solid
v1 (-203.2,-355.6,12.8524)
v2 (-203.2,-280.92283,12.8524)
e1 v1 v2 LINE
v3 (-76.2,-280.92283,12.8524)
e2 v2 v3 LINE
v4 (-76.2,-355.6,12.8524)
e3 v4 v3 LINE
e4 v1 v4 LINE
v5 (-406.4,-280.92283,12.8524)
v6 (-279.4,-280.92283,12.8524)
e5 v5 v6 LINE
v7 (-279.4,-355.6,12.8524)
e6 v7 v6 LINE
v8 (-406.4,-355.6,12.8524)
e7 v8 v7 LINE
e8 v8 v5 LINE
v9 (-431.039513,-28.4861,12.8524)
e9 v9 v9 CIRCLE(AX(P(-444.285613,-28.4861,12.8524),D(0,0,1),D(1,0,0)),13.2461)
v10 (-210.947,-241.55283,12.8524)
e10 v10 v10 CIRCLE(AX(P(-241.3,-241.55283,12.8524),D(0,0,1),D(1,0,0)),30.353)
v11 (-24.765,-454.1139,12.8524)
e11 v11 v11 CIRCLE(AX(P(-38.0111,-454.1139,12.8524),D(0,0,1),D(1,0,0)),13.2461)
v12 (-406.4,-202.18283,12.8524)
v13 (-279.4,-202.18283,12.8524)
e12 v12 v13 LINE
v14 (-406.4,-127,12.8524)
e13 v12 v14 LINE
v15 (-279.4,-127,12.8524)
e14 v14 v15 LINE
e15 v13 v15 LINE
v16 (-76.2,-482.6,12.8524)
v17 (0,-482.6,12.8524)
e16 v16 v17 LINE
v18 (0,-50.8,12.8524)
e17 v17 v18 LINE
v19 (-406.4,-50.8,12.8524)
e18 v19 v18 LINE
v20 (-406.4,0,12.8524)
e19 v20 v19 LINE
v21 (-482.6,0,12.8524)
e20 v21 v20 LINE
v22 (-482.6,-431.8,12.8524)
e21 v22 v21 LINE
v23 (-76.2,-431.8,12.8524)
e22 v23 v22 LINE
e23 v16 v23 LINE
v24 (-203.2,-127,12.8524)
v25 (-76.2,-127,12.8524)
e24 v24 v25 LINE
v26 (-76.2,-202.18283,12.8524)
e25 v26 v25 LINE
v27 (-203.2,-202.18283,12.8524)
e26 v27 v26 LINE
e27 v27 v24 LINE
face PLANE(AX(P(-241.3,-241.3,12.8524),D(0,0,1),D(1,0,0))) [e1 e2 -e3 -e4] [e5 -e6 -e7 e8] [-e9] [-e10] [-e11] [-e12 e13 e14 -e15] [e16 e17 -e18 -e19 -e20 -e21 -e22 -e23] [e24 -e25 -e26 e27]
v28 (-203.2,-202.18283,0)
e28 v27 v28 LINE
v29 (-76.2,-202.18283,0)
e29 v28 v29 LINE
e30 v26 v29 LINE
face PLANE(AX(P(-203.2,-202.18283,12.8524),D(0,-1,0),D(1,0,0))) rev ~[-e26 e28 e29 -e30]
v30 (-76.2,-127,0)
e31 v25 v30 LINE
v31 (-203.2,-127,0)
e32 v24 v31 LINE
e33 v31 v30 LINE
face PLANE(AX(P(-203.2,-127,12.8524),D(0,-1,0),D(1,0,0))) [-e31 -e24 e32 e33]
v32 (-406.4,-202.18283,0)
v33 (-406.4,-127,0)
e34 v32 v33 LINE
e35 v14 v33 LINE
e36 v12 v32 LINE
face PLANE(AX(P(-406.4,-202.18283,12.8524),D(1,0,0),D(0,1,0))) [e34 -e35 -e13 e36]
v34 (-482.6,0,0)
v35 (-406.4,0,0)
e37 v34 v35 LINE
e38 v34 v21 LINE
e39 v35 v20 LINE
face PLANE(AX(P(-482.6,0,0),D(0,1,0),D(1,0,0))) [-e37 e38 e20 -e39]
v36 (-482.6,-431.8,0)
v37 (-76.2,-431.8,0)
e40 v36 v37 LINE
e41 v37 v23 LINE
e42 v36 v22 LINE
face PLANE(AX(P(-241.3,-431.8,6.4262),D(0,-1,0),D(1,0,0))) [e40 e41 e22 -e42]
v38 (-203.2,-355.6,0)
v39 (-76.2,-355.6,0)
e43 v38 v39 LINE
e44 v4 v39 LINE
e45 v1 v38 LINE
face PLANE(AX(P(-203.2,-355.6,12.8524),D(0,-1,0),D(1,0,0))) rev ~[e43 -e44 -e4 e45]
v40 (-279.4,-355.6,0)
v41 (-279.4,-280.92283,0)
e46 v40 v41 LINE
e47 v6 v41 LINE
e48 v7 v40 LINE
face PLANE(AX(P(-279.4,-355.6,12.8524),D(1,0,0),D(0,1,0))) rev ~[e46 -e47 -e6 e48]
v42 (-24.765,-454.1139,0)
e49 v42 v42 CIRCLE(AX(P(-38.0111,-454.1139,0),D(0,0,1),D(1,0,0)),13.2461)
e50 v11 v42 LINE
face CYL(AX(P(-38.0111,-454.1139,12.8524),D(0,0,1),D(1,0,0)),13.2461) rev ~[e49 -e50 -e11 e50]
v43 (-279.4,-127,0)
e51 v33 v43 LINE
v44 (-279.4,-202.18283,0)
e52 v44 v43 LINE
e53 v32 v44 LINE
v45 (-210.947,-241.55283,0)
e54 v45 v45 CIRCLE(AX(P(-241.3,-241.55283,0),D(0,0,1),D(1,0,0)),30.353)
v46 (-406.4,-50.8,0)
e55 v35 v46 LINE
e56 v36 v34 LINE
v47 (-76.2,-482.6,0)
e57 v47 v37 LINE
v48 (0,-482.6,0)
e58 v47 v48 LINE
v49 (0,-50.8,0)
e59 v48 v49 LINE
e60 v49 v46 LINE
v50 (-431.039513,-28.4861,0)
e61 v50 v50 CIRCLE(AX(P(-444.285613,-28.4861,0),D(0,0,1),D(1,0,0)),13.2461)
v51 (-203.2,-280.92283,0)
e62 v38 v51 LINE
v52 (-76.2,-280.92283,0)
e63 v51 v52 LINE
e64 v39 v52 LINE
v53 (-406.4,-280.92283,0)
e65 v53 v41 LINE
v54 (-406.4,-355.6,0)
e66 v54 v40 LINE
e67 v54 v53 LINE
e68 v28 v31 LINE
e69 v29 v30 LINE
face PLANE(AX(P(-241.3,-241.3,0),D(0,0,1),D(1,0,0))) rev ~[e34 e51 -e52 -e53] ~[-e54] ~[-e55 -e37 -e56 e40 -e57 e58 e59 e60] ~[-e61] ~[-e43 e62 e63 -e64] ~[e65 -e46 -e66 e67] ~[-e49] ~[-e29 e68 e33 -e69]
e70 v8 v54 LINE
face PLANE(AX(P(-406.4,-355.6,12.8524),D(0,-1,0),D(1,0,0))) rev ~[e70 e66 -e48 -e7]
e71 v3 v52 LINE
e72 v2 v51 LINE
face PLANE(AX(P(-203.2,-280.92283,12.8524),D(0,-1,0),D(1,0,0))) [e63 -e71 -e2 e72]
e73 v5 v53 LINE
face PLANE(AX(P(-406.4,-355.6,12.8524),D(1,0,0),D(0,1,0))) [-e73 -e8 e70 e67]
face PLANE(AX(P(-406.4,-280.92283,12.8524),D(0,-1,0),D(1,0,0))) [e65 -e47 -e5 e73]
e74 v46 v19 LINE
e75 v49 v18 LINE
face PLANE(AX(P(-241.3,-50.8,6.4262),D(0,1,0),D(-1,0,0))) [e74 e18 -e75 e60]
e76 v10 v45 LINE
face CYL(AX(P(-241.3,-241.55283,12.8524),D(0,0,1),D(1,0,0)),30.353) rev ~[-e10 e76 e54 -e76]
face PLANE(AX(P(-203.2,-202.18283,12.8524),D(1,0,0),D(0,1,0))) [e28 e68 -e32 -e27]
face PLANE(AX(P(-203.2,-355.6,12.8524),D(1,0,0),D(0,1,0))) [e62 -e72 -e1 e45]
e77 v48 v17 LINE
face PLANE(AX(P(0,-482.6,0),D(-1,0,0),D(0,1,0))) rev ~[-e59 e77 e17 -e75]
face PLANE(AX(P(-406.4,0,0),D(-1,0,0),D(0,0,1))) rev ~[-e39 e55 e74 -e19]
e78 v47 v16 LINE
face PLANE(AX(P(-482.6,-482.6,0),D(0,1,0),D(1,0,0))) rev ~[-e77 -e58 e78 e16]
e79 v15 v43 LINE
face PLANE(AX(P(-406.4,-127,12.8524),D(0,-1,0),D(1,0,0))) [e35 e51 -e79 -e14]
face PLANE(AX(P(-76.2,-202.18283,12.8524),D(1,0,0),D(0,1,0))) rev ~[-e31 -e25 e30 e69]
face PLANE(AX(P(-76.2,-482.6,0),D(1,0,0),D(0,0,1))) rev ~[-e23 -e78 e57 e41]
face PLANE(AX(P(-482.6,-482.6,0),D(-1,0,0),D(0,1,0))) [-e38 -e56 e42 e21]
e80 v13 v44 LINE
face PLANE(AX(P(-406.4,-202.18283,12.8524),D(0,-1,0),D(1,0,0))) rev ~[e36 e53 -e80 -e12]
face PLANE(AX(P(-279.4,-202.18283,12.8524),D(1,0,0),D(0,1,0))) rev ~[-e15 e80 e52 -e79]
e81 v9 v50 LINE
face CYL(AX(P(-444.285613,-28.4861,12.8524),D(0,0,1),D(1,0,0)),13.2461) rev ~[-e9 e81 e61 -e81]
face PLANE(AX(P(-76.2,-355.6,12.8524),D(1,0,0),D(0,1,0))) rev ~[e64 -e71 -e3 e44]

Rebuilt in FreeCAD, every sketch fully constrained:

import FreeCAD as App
import Part
import Sketcher
Q = App.Units.Quantity

doc = App.newDocument("Part")
body = doc.addObject("PartDesign::Body", "Body")

# Sketch on XY plane
sketch1 = doc.addObject("Sketcher::SketchObject", "Sketch")
body.addObject(sketch1)
sketch1.AttachmentSupport = (doc.XY_Plane, [""])
sketch1.MapMode = "FlatFace"
sketch1.addGeometry([
    Part.LineSegment(App.Vector(-482.6, 0, 0), App.Vector(-482.6, -482.6, 0)),
    Part.LineSegment(App.Vector(-482.6, -482.6, 0), App.Vector(0, -482.6, 0)),
    Part.LineSegment(App.Vector(0, -482.6, 0), App.Vector(0, 0, 0)),
    Part.LineSegment(App.Vector(0, 0, 0), App.Vector(-482.6, 0, 0)),
], False)
sketch1.addConstraint([
    Sketcher.Constraint("Coincident", 0, 2, 1, 1),
    Sketcher.Constraint("Coincident", 1, 2, 2, 1),
    Sketcher.Constraint("Coincident", 2, 2, 3, 1),
    Sketcher.Constraint("Coincident", 3, 2, 0, 1),
    Sketcher.Constraint("Vertical", 0),
    Sketcher.Constraint("Horizontal", 1),
    Sketcher.Constraint("Vertical", 2),
    Sketcher.Constraint("Horizontal", 3),
    Sketcher.Constraint("Coincident", 2, 2, -1, 1),
    Sketcher.Constraint("Equal", 3, 0),
    Sketcher.Constraint("DistanceX", 1, 1, 1, 2, Q("19 in")),
])
pad1 = doc.addObject("PartDesign::Pad", "Pad")
body.addObject(pad1)
pad1.Profile = sketch1
pad1.Length = Q("0.506 in")

# Sketch on XZ plane
sketch2 = doc.addObject("Sketcher::SketchObject", "Sketch001")
body.addObject(sketch2)
sketch2.AttachmentSupport = (doc.XZ_Plane, [""])
sketch2.MapMode = "FlatFace"
sketch2.AttachmentOffset = App.Placement(App.Vector(0, 0, 19 * 25.4), App.Rotation())
sketch2.addGeometry([
    Part.LineSegment(App.Vector(-76.2, 0, 0), App.Vector(-76.2, 12.8524, 0)),
    Part.LineSegment(App.Vector(-76.2, 12.8524, 0), App.Vector(-482.6, 12.8524, 0)),
    Part.LineSegment(App.Vector(-482.6, 12.8524, 0), App.Vector(-482.6, 0, 0)),
    Part.LineSegment(App.Vector(-482.6, 0, 0), App.Vector(-76.2, 0, 0)),
], False)
sketch2.addConstraint([
    Sketcher.Constraint("Coincident", 0, 2, 1, 1),
    Sketcher.Constraint("Coincident", 1, 2, 2, 1),
    Sketcher.Constraint("Coincident", 2, 2, 3, 1),
    Sketcher.Constraint("Coincident", 3, 2, 0, 1),
    Sketcher.Constraint("Vertical", 0),
    Sketcher.Constraint("Horizontal", 1),
    Sketcher.Constraint("Vertical", 2),
    Sketcher.Constraint("Horizontal", 3),
    Sketcher.Constraint("PointOnObject", 2, 2, -1),
    Sketcher.Constraint("DistanceX", 1, 2, 1, 1, Q("16 in")),
    Sketcher.Constraint("DistanceX", 0, 2, -1, 1, Q("3 in")),
    Sketcher.Constraint("DistanceY", 0, 1, 0, 2, Q("0.506 in")),
])
pocket1 = doc.addObject("PartDesign::Pocket", "Pocket")
body.addObject(pocket1)
pocket1.Profile = sketch2
pocket1.Length = Q("2 in")

# Sketch on XZ plane
sketch3 = doc.addObject("Sketcher::SketchObject", "Sketch002")
body.addObject(sketch3)
sketch3.AttachmentSupport = (doc.XZ_Plane, [""])
sketch3.MapMode = "FlatFace"
sketch3.addGeometry([
    Part.LineSegment(App.Vector(-406.4, 0, 0), App.Vector(-406.4, 12.8524, 0)),
    Part.LineSegment(App.Vector(-406.4, 12.8524, 0), App.Vector(0, 12.8524, 0)),
    Part.LineSegment(App.Vector(0, 12.8524, 0), App.Vector(0, 0, 0)),
    Part.LineSegment(App.Vector(0, 0, 0), App.Vector(-406.4, 0, 0)),
], False)
sketch3.addConstraint([
    Sketcher.Constraint("Coincident", 0, 2, 1, 1),
    Sketcher.Constraint("Coincident", 1, 2, 2, 1),
    Sketcher.Constraint("Coincident", 2, 2, 3, 1),
    Sketcher.Constraint("Coincident", 3, 2, 0, 1),
    Sketcher.Constraint("Vertical", 0),
    Sketcher.Constraint("Horizontal", 1),
    Sketcher.Constraint("Vertical", 2),
    Sketcher.Constraint("Horizontal", 3),
    Sketcher.Constraint("Coincident", 2, 2, -1, 1),
    Sketcher.Constraint("DistanceX", 1, 1, 1, 2, Q("16 in")),
    Sketcher.Constraint("DistanceY", 0, 1, 0, 2, Q("0.506 in")),
])
pocket2 = doc.addObject("PartDesign::Pocket", "Pocket001")
body.addObject(pocket2)
pocket2.Profile = sketch3
pocket2.Length = Q("2 in")
pocket2.Reversed = True

# Sketch on XY plane
sketch4 = doc.addObject("Sketcher::SketchObject", "Sketch003")
body.addObject(sketch4)
sketch4.AttachmentSupport = (doc.XY_Plane, [""])
sketch4.MapMode = "FlatFace"
sketch4.AttachmentOffset = App.Placement(App.Vector(0, 0, 0.506 * 25.4), App.Rotation())
sketch4.addGeometry([
    Part.LineSegment(App.Vector(-203.2, -280.92283, 0), App.Vector(-203.2, -355.6, 0)),  # 0
    Part.LineSegment(App.Vector(-203.2, -355.6, 0), App.Vector(-76.2, -355.6, 0)),  # 1
    Part.LineSegment(App.Vector(-76.2, -355.6, 0), App.Vector(-76.2, -280.92283, 0)),  # 2
    Part.LineSegment(App.Vector(-76.2, -280.92283, 0), App.Vector(-203.2, -280.92283, 0)),  # 3
    Part.LineSegment(App.Vector(-406.4, -127, 0), App.Vector(-406.4, -202.18283, 0)),  # 4
    Part.LineSegment(App.Vector(-406.4, -202.18283, 0), App.Vector(-279.4, -202.18283, 0)),  # 5
    Part.LineSegment(App.Vector(-279.4, -202.18283, 0), App.Vector(-279.4, -127, 0)),  # 6
    Part.LineSegment(App.Vector(-279.4, -127, 0), App.Vector(-406.4, -127, 0)),  # 7
    Part.LineSegment(App.Vector(-203.2, -127, 0), App.Vector(-203.2, -202.18283, 0)),  # 8
    Part.LineSegment(App.Vector(-203.2, -202.18283, 0), App.Vector(-76.2, -202.18283, 0)),  # 9
    Part.LineSegment(App.Vector(-76.2, -202.18283, 0), App.Vector(-76.2, -127, 0)),  # 10
    Part.LineSegment(App.Vector(-76.2, -127, 0), App.Vector(-203.2, -127, 0)),  # 11
    Part.LineSegment(App.Vector(-406.4, -280.92283, 0), App.Vector(-406.4, -355.6, 0)),  # 12
    Part.LineSegment(App.Vector(-406.4, -355.6, 0), App.Vector(-279.4, -355.6, 0)),  # 13
    Part.LineSegment(App.Vector(-279.4, -355.6, 0), App.Vector(-279.4, -280.92283, 0)),  # 14
    Part.LineSegment(App.Vector(-279.4, -280.92283, 0), App.Vector(-406.4, -280.92283, 0)),  # 15
], False)
sketch4.addConstraint([
    Sketcher.Constraint("Coincident", 0, 2, 1, 1),
    Sketcher.Constraint("Coincident", 1, 2, 2, 1),
    Sketcher.Constraint("Coincident", 2, 2, 3, 1),
    Sketcher.Constraint("Coincident", 3, 2, 0, 1),
    Sketcher.Constraint("Coincident", 4, 2, 5, 1),
    Sketcher.Constraint("Coincident", 5, 2, 6, 1),
    Sketcher.Constraint("Coincident", 6, 2, 7, 1),
    Sketcher.Constraint("Coincident", 7, 2, 4, 1),
    Sketcher.Constraint("Coincident", 8, 2, 9, 1),
    Sketcher.Constraint("Coincident", 9, 2, 10, 1),
    Sketcher.Constraint("Coincident", 10, 2, 11, 1),
    Sketcher.Constraint("Coincident", 11, 2, 8, 1),
    Sketcher.Constraint("Coincident", 12, 2, 13, 1),
    Sketcher.Constraint("Coincident", 13, 2, 14, 1),
    Sketcher.Constraint("Coincident", 14, 2, 15, 1),
    Sketcher.Constraint("Coincident", 15, 2, 12, 1),
    Sketcher.Constraint("Vertical", 0),
    Sketcher.Constraint("Horizontal", 1),
    Sketcher.Constraint("Vertical", 2),
    Sketcher.Constraint("Horizontal", 3),
    Sketcher.Constraint("Vertical", 4),
    Sketcher.Constraint("Horizontal", 5),
    Sketcher.Constraint("Vertical", 6),
    Sketcher.Constraint("Horizontal", 7),
    Sketcher.Constraint("Vertical", 8),
    Sketcher.Constraint("Horizontal", 9),
    Sketcher.Constraint("Vertical", 10),
    Sketcher.Constraint("Horizontal", 11),
    Sketcher.Constraint("Vertical", 12),
    Sketcher.Constraint("Horizontal", 13),
    Sketcher.Constraint("Vertical", 14),
    Sketcher.Constraint("Horizontal", 15),
    Sketcher.Constraint("Horizontal", 5, 2, 8, 2),
    Sketcher.Constraint("Horizontal", 7, 2, 10, 2),
    Sketcher.Constraint("Horizontal", 1, 2, 12, 2),
    Sketcher.Constraint("Horizontal", 3, 2, 14, 2),
    Sketcher.Constraint("Vertical", 3, 2, 8, 2),
    Sketcher.Constraint("Vertical", 2, 2, 9, 2),
    Sketcher.Constraint("Vertical", 7, 2, 12, 2),
    Sketcher.Constraint("Vertical", 6, 2, 13, 2),
    Sketcher.Constraint("Equal", 3, 5),
    Sketcher.Constraint("DistanceX", 1, 1, 1, 2, Q("5 in")),
    Sketcher.Constraint("DistanceX", 0, 2, -1, 1, Q("8 in")),
    Sketcher.Constraint("DistanceY", 0, 2, -1, 1, Q("14 in")),
    Sketcher.Constraint("DistanceX", 4, 2, -1, 1, Q("16 in")),
    Sketcher.Constraint("DistanceY", 6, 2, -1, 1, Q("5 in")),
    Sketcher.Constraint("DistanceY", 3, 2, 4, 2, Q("3.1 in")),
    Sketcher.Constraint("DistanceY", 0, 2, 0, 1, Q("74.67717 mm")),
])
pocket3 = doc.addObject("PartDesign::Pocket", "Pocket002")
body.addObject(pocket3)
pocket3.Profile = sketch4
pocket3.Length = Q("1 in")

# Sketch on XY plane
sketch5 = doc.addObject("Sketcher::SketchObject", "Sketch004")
body.addObject(sketch5)
sketch5.AttachmentSupport = (doc.XY_Plane, [""])
sketch5.MapMode = "FlatFace"
sketch5.AttachmentOffset = App.Placement(App.Vector(0, 0, 0.506 * 25.4), App.Rotation())
sketch5.addGeometry([
    Part.Circle(App.Vector(-444.285613, -28.4861, 0), App.Vector(0, 0, 1), 13.2461),
    Part.Circle(App.Vector(-241.3, -241.55283, 0), App.Vector(0, 0, 1), 30.353),
    Part.Circle(App.Vector(-38.0111, -454.1139, 0), App.Vector(0, 0, 1), 13.2461),
], False)
sketch5.addConstraint([
    Sketcher.Constraint("Equal", 0, 2),
    Sketcher.Constraint("Diameter", 1, Q("2.39 in")),
    Sketcher.Constraint("Diameter", 0, Q("1.043 in")),
    Sketcher.Constraint("DistanceX", 1, 3, -1, 1, Q("9.5 in")),
    Sketcher.Constraint("DistanceY", 2, 3, 0, 3, Q("16.757 in")),
    Sketcher.Constraint("DistanceY", 0, 3, -1, 1, Q("1.1215 in")),
    Sketcher.Constraint("DistanceX", 2, 3, -1, 1, Q("1.4965 in")),
    Sketcher.Constraint("DistanceY", 1, 3, -1, 1, Q("241.55283 mm")),
    Sketcher.Constraint("DistanceX", 0, 3, -1, 1, Q("444.285613 mm")),
])
pocket4 = doc.addObject("PartDesign::Pocket", "Pocket003")
body.addObject(pocket4)
pocket4.Profile = sketch5
pocket4.Length = Q("1 in")

doc.recompute()
